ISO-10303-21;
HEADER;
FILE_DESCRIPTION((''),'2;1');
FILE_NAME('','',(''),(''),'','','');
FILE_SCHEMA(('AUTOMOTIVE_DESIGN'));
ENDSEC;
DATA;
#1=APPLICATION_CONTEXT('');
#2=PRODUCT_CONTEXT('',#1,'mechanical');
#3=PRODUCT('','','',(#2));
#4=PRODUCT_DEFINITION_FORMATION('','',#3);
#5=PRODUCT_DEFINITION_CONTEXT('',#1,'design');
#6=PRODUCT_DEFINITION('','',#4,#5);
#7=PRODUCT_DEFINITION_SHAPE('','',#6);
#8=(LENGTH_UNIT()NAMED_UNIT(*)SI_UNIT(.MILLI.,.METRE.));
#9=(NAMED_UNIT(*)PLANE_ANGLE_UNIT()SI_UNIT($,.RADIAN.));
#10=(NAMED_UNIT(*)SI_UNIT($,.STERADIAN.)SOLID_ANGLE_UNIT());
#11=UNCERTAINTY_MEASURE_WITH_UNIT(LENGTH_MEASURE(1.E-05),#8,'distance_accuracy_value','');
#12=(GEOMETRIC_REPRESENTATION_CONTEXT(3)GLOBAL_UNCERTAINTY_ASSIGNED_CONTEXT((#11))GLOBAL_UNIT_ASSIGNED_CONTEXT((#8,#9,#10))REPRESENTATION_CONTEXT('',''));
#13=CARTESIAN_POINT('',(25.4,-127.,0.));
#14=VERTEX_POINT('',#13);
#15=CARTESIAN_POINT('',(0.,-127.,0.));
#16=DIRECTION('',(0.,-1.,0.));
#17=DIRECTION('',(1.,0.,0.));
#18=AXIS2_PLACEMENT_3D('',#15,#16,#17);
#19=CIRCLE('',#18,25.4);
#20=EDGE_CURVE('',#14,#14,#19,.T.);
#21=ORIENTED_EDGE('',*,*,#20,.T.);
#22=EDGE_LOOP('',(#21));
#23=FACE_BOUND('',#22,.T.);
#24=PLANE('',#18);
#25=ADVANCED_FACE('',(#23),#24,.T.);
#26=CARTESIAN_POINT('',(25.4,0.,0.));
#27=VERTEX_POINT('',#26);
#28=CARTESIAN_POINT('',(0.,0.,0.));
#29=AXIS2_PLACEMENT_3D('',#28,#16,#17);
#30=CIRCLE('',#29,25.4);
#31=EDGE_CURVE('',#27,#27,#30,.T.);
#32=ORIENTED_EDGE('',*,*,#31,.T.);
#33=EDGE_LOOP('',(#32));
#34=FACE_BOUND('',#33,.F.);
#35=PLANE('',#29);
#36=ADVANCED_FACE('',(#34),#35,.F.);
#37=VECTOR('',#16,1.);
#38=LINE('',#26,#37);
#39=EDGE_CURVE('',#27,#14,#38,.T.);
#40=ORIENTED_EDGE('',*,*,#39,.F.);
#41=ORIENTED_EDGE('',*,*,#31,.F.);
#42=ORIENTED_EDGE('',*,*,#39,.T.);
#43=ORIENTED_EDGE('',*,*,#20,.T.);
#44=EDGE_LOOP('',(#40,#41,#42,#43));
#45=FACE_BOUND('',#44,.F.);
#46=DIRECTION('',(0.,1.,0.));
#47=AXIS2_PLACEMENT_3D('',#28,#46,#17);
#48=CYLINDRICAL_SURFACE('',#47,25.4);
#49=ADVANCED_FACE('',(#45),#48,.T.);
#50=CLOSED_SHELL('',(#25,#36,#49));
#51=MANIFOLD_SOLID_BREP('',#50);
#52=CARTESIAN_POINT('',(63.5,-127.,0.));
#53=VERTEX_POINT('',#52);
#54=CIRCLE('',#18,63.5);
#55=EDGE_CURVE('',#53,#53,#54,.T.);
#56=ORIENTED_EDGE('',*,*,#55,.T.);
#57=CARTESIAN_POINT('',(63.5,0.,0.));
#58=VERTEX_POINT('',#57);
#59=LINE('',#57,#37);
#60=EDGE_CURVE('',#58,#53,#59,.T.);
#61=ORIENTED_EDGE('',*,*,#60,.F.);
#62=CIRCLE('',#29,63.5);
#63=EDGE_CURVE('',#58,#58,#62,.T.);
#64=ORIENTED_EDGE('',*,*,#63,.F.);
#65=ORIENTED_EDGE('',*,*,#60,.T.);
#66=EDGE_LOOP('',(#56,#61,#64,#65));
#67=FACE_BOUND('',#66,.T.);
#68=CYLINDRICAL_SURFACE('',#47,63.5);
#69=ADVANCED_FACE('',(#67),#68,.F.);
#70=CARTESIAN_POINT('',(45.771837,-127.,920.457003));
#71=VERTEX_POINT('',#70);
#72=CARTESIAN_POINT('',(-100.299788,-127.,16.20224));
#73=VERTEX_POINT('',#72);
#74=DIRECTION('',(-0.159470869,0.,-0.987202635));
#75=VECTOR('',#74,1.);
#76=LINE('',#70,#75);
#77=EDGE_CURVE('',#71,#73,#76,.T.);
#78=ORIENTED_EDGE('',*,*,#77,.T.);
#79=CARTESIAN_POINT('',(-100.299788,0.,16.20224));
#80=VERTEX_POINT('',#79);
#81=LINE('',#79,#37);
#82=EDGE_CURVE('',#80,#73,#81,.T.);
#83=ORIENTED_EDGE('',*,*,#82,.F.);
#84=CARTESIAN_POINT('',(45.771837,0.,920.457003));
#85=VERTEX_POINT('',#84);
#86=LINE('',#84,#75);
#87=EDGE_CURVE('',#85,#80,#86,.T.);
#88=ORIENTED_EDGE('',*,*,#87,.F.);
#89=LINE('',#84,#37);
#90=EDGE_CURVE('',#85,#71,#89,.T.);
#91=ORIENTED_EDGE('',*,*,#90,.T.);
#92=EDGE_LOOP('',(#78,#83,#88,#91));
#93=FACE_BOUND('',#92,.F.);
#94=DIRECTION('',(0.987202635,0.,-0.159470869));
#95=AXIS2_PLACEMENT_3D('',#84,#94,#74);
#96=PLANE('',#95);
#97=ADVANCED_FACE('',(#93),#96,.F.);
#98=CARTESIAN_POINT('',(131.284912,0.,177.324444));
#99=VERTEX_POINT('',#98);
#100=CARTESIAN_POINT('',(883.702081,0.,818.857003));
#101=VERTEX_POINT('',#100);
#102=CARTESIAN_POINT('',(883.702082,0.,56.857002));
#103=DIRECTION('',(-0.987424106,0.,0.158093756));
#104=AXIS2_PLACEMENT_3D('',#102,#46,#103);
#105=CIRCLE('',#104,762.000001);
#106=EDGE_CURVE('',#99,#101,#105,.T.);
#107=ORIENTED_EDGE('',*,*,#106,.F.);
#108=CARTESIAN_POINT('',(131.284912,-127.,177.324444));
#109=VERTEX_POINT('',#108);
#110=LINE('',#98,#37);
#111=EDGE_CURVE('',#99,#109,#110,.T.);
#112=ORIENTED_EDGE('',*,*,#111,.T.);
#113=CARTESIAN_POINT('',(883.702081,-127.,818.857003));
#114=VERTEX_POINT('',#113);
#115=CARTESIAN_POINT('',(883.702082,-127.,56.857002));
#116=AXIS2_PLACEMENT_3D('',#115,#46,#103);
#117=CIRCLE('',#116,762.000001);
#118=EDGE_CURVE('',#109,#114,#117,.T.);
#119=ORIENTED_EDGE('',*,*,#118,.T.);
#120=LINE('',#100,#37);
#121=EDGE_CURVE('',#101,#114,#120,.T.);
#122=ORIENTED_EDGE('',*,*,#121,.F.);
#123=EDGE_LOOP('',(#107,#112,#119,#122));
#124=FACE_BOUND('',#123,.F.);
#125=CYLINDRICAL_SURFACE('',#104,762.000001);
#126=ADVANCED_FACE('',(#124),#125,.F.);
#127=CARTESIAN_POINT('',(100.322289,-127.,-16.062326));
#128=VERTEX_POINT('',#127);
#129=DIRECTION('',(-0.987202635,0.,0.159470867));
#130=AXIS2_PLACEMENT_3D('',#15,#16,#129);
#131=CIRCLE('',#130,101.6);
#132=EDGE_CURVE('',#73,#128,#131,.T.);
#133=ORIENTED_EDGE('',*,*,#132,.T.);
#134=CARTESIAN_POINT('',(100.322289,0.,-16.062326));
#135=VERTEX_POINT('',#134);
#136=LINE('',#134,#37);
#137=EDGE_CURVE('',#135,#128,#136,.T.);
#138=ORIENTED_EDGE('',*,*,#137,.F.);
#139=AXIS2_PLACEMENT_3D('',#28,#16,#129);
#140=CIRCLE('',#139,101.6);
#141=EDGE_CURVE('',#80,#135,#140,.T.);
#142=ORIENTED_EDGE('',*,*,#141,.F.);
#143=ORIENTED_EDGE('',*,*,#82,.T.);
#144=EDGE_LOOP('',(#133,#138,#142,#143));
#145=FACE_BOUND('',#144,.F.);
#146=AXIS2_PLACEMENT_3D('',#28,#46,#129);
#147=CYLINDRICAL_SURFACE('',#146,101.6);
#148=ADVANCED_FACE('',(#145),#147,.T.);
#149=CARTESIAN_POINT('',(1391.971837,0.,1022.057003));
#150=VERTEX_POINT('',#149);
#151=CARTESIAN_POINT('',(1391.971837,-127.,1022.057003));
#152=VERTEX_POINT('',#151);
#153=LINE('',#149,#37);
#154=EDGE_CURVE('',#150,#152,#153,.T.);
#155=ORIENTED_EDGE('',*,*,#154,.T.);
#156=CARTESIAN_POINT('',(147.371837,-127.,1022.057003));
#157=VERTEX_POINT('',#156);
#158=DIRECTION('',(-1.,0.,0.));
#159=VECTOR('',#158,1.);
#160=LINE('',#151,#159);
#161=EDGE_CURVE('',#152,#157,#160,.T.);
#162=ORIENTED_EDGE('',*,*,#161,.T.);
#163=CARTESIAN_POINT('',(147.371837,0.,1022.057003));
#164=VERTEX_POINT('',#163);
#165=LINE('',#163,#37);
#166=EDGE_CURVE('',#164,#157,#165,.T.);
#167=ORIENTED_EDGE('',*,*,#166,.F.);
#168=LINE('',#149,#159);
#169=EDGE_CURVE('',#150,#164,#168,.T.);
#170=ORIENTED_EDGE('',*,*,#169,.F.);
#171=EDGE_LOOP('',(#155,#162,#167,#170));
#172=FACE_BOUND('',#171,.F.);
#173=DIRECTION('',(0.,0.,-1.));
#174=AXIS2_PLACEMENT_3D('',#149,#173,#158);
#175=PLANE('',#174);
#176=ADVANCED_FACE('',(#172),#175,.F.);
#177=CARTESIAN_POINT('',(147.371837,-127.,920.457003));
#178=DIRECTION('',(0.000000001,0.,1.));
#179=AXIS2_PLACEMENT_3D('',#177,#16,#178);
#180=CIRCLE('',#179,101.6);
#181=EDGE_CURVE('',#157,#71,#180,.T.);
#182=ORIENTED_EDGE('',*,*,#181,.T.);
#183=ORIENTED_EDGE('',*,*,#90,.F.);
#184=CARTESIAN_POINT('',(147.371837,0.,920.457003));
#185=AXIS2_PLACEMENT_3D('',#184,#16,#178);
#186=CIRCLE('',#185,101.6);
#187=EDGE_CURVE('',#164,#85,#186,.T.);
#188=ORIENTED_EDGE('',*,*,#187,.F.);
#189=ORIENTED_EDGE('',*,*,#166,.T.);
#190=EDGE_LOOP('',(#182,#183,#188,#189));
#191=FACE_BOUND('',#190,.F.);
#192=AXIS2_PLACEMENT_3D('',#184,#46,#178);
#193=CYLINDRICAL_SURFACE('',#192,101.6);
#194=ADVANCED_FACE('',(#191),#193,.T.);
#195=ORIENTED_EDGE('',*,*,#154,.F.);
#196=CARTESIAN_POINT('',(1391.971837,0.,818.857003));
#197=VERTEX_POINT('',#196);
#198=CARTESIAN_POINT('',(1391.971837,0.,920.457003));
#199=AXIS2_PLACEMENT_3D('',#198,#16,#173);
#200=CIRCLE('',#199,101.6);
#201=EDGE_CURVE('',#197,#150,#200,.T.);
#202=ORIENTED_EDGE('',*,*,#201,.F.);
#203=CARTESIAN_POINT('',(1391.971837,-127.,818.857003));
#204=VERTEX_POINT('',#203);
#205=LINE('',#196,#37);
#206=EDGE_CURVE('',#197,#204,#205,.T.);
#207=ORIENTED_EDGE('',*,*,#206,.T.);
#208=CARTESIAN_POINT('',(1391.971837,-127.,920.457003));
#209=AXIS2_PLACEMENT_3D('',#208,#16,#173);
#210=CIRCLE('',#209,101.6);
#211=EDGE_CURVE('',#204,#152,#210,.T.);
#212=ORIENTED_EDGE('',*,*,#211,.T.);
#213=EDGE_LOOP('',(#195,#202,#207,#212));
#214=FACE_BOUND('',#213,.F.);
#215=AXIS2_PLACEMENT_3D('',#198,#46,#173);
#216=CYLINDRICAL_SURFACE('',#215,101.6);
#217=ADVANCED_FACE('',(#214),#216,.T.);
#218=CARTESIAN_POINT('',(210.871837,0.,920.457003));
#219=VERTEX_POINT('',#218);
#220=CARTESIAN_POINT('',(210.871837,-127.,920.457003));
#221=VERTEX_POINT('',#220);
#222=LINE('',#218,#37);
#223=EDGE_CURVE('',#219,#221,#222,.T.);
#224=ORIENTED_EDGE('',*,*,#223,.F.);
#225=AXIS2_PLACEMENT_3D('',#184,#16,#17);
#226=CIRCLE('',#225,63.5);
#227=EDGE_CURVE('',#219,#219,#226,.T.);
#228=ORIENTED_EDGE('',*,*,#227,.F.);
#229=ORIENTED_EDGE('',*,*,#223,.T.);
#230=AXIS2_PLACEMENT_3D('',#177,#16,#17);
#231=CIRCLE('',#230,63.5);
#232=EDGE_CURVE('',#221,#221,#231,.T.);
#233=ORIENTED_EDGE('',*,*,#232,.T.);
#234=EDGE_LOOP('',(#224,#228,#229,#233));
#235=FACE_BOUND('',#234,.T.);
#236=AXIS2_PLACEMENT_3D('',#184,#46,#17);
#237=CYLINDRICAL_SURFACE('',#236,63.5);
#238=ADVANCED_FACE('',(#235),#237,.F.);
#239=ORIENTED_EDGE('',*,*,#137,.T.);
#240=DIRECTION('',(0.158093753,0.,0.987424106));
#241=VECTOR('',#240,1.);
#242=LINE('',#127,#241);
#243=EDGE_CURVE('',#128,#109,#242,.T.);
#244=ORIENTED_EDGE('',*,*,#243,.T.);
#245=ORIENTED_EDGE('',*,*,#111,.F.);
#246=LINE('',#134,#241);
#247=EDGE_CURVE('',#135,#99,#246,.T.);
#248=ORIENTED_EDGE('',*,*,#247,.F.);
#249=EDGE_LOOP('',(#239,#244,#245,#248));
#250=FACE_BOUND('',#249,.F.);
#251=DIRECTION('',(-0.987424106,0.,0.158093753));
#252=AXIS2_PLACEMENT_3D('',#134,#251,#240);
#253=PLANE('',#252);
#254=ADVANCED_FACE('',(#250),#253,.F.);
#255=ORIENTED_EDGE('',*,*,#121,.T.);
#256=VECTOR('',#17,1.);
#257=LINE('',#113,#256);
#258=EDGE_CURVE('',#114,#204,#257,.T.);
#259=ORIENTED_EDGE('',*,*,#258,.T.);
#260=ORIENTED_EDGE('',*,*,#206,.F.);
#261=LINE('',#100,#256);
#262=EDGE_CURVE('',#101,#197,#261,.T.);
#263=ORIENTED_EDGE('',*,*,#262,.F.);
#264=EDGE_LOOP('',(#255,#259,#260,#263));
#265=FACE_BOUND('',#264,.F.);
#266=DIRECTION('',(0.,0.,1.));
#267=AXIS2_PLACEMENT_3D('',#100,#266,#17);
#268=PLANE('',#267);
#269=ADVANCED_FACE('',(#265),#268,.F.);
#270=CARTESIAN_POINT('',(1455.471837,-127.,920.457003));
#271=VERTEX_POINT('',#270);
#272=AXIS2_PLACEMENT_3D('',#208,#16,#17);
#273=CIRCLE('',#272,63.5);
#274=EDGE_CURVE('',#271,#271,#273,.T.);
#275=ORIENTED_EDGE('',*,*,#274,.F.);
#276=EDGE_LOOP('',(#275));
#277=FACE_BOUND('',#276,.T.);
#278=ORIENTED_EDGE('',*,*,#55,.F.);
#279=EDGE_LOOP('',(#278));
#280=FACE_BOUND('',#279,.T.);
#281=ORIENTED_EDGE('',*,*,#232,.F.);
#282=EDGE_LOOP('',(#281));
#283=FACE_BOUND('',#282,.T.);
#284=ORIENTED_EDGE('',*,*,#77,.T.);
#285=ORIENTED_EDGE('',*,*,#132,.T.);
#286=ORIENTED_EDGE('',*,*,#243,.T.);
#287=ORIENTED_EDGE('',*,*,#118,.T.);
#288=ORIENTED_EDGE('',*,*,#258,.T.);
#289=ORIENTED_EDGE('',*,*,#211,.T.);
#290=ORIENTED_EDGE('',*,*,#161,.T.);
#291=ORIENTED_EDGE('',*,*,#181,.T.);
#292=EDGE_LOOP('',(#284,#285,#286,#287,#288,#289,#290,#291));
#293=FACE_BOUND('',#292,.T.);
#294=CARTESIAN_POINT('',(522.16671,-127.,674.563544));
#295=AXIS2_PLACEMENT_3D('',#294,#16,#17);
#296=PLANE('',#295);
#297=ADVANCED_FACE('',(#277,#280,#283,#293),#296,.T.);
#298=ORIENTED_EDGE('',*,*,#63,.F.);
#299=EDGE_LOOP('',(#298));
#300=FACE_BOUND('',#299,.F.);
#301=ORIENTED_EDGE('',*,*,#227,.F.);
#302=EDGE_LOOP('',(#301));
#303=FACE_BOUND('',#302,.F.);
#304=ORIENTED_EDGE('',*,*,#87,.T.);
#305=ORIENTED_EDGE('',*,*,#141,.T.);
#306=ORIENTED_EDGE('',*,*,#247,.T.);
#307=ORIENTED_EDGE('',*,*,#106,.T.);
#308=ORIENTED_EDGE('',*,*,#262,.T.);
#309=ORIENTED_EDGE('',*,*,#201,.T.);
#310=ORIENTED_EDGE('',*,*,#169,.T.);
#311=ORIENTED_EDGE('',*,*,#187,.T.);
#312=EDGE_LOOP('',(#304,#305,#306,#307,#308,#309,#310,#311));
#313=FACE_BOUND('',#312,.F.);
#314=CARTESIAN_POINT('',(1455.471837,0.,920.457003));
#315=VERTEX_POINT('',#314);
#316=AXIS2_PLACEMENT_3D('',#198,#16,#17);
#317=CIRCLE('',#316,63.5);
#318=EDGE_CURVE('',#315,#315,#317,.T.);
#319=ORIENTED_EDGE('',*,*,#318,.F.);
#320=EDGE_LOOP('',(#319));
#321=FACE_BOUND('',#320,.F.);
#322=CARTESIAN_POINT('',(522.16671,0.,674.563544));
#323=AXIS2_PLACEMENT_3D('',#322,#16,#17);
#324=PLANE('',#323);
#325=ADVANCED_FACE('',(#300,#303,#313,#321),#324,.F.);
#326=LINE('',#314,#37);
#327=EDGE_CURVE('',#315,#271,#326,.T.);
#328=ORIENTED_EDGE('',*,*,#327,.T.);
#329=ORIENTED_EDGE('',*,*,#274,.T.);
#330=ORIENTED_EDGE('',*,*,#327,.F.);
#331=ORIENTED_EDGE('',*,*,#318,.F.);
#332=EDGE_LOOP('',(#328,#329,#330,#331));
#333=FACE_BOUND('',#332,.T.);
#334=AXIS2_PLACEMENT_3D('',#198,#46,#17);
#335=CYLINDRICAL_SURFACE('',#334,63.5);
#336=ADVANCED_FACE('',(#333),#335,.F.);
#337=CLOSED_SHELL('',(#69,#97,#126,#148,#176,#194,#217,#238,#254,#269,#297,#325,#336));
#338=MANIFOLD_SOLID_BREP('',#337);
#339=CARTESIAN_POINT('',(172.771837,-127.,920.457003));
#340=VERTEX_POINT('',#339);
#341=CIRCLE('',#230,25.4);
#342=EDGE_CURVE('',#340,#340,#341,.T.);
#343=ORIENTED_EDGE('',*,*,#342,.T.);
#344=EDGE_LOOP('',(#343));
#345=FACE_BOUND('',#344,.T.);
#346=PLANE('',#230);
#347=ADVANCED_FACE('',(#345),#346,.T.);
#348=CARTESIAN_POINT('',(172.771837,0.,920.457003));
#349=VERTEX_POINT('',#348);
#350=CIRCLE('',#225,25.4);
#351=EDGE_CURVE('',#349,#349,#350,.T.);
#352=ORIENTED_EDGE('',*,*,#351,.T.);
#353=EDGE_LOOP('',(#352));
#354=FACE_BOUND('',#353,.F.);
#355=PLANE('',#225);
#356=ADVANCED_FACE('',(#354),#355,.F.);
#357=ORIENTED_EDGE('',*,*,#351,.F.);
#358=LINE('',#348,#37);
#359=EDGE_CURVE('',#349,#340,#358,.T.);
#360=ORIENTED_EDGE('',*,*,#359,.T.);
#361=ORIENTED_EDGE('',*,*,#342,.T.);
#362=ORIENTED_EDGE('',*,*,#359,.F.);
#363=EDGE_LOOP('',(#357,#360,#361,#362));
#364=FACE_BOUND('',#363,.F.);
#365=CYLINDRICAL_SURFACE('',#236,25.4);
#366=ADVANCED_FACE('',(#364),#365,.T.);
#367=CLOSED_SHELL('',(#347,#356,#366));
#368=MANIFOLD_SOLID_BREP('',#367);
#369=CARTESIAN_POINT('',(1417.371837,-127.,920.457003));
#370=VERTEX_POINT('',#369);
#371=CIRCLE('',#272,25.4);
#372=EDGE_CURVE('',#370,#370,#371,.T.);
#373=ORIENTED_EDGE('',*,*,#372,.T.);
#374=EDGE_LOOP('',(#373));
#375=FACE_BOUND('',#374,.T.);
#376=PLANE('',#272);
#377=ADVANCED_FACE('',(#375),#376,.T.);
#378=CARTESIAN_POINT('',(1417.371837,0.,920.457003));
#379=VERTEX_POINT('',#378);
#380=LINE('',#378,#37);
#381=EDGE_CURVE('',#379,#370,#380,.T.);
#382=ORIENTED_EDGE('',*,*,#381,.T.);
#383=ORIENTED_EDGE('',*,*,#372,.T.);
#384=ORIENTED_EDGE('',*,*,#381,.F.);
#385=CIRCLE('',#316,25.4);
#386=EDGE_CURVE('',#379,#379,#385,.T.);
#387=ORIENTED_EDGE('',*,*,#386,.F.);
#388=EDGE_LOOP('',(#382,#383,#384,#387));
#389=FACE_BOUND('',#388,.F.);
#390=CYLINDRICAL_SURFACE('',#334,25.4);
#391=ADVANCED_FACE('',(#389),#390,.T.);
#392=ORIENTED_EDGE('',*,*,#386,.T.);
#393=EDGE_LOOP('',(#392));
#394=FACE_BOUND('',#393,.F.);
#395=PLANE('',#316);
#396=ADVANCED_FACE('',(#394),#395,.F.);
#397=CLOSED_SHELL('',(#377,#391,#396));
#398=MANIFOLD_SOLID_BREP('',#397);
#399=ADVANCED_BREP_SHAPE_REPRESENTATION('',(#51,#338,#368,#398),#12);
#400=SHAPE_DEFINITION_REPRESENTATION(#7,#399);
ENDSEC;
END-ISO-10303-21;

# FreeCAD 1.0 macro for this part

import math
import FreeCAD as App
import Part
import Sketcher

V = App.Vector
Q = App.Units.Quantity

doc = App.newDocument("Part")
body = doc.addObject("PartDesign::Body", "Body")
body.AllowCompound = True

sketch1 = body.newObject("Sketcher::SketchObject", "Sketch")
sketch1.AttachmentSupport = (doc.getObject("XZ_Plane"), [""])
sketch1.MapMode = "FlatFace"
sketch1.addGeometry(Part.LineSegment(V(1391.971837, 1022.057003, 0), V(147.371837, 1022.057003, 0)), False)
sketch1.addGeometry(Part.ArcOfCircle(Part.Circle(V(147.371837, 920.457003, 0), V(0, 0, 1), 101.6), math.radians(90), math.radians(180)), False)
sketch1.addGeometry(Part.LineSegment(V(45.771837, 920.457003, 0), V(-100.299788, 16.20224, 0)), False)
sketch1.addGeometry(Part.ArcOfCircle(Part.Circle(V(0, 0, 0), V(0, 0, 1), 101.6), math.radians(170.823815), math.radians(350.903732)), False)
sketch1.addGeometry(Part.LineSegment(V(100.322289, -16.062326, 0), V(131.284912, 177.324444, 0)), False)
sketch1.addGeometry(Part.ArcOfCircle(Part.Circle(V(883.702082, 56.857002, 0), V(0, 0, 1), 762.000001), math.radians(90), math.radians(170.903732)), False)
sketch1.addGeometry(Part.LineSegment(V(883.702081, 818.857003, 0), V(1391.971837, 818.857003, 0)), False)
sketch1.addGeometry(Part.ArcOfCircle(Part.Circle(V(1391.971837, 920.457003, 0), V(0, 0, 1), 101.6), math.radians(-90), math.radians(90)), False)
sketch1.addGeometry(Part.Circle(V(0, 0, 0), V(0, 0, 1), 63.5), False)
sketch1.addGeometry(Part.Circle(V(147.371837, 920.457003, 0), V(0, 0, 1), 63.5), False)
sketch1.addGeometry(Part.Circle(V(1391.971837, 920.457003, 0), V(0, 0, 1), 63.5), False)
sketch1.addGeometry(Part.Circle(V(147.371837, 920.457003, 0), V(0, 0, 1), 25.4), False)
sketch1.addGeometry(Part.Circle(V(0, 0, 0), V(0, 0, 1), 25.4), False)
sketch1.addGeometry(Part.Circle(V(1391.971837, 920.457003, 0), V(0, 0, 1), 25.4), False)
sketch1.addConstraint(Sketcher.Constraint("Tangent", 0, 2, 1, 1))
sketch1.addConstraint(Sketcher.Constraint("Coincident", 1, 2, 2, 1))
sketch1.addConstraint(Sketcher.Constraint("Tangent", 2, 2, 3, 1))
sketch1.addConstraint(Sketcher.Constraint("Tangent", 3, 2, 4, 1))
sketch1.addConstraint(Sketcher.Constraint("Tangent", 4, 2, 5, 2))
sketch1.addConstraint(Sketcher.Constraint("Tangent", 5, 1, 6, 1))
sketch1.addConstraint(Sketcher.Constraint("Tangent", 6, 2, 7, 1))
sketch1.addConstraint(Sketcher.Constraint("Tangent", 7, 2, 0, 1))
sketch1.addConstraint(Sketcher.Constraint("Horizontal", 0))
sketch1.addConstraint(Sketcher.Constraint("Horizontal", 6))
sketch1.addConstraint(Sketcher.Constraint("Coincident", 3, 3, -1, 1))
sketch1.addConstraint(Sketcher.Constraint("Coincident", 8, 3, -1, 1))
sketch1.addConstraint(Sketcher.Constraint("Coincident", 12, 3, -1, 1))
sketch1.addConstraint(Sketcher.Constraint("Coincident", 9, 3, 1, 3))
sketch1.addConstraint(Sketcher.Constraint("Coincident", 10, 3, 7, 3))
sketch1.addConstraint(Sketcher.Constraint("Coincident", 11, 3, 1, 3))
sketch1.addConstraint(Sketcher.Constraint("Coincident", 13, 3, 7, 3))
sketch1.addConstraint(Sketcher.Constraint("Equal", 1, 3))
sketch1.addConstraint(Sketcher.Constraint("Equal", 3, 7))
sketch1.addConstraint(Sketcher.Constraint("Equal", 8, 9))
sketch1.addConstraint(Sketcher.Constraint("Equal", 9, 10))
sketch1.addConstraint(Sketcher.Constraint("Equal", 11, 12))
sketch1.addConstraint(Sketcher.Constraint("Equal", 12, 13))
sketch1.addConstraint(Sketcher.Constraint("Horizontal", 13, 3, 1, 2))
sketch1.addConstraint(Sketcher.Constraint("Diameter", 8, Q("5 in")))
sketch1.addConstraint(Sketcher.Constraint("Diameter", 11, Q("2 in")))
sketch1.addConstraint(Sketcher.Constraint("Radius", 1, Q("4 in")))
sketch1.addConstraint(Sketcher.Constraint("Radius", 5, Q("30 in")))
sketch1.addConstraint(Sketcher.Constraint("DistanceX", 0, 2, 0, 1, Q("49 in")))
sketch1.addConstraint(Sketcher.Constraint("DistanceY", -1, 1, 5, 3, Q("56.857002 mm")))
sketch1.addConstraint(Sketcher.Constraint("DistanceX", 2, 2, 4, 2, Q("231.5847 mm")))
sketch1.addConstraint(Sketcher.Constraint("DistanceX", 6, 1, 6, 2, Q("508.269756 mm")))
pad1 = body.newObject("PartDesign::Pad", "Pad")
pad1.Profile = sketch1
pad1.Length = Q("5 in")

doc.recompute()
